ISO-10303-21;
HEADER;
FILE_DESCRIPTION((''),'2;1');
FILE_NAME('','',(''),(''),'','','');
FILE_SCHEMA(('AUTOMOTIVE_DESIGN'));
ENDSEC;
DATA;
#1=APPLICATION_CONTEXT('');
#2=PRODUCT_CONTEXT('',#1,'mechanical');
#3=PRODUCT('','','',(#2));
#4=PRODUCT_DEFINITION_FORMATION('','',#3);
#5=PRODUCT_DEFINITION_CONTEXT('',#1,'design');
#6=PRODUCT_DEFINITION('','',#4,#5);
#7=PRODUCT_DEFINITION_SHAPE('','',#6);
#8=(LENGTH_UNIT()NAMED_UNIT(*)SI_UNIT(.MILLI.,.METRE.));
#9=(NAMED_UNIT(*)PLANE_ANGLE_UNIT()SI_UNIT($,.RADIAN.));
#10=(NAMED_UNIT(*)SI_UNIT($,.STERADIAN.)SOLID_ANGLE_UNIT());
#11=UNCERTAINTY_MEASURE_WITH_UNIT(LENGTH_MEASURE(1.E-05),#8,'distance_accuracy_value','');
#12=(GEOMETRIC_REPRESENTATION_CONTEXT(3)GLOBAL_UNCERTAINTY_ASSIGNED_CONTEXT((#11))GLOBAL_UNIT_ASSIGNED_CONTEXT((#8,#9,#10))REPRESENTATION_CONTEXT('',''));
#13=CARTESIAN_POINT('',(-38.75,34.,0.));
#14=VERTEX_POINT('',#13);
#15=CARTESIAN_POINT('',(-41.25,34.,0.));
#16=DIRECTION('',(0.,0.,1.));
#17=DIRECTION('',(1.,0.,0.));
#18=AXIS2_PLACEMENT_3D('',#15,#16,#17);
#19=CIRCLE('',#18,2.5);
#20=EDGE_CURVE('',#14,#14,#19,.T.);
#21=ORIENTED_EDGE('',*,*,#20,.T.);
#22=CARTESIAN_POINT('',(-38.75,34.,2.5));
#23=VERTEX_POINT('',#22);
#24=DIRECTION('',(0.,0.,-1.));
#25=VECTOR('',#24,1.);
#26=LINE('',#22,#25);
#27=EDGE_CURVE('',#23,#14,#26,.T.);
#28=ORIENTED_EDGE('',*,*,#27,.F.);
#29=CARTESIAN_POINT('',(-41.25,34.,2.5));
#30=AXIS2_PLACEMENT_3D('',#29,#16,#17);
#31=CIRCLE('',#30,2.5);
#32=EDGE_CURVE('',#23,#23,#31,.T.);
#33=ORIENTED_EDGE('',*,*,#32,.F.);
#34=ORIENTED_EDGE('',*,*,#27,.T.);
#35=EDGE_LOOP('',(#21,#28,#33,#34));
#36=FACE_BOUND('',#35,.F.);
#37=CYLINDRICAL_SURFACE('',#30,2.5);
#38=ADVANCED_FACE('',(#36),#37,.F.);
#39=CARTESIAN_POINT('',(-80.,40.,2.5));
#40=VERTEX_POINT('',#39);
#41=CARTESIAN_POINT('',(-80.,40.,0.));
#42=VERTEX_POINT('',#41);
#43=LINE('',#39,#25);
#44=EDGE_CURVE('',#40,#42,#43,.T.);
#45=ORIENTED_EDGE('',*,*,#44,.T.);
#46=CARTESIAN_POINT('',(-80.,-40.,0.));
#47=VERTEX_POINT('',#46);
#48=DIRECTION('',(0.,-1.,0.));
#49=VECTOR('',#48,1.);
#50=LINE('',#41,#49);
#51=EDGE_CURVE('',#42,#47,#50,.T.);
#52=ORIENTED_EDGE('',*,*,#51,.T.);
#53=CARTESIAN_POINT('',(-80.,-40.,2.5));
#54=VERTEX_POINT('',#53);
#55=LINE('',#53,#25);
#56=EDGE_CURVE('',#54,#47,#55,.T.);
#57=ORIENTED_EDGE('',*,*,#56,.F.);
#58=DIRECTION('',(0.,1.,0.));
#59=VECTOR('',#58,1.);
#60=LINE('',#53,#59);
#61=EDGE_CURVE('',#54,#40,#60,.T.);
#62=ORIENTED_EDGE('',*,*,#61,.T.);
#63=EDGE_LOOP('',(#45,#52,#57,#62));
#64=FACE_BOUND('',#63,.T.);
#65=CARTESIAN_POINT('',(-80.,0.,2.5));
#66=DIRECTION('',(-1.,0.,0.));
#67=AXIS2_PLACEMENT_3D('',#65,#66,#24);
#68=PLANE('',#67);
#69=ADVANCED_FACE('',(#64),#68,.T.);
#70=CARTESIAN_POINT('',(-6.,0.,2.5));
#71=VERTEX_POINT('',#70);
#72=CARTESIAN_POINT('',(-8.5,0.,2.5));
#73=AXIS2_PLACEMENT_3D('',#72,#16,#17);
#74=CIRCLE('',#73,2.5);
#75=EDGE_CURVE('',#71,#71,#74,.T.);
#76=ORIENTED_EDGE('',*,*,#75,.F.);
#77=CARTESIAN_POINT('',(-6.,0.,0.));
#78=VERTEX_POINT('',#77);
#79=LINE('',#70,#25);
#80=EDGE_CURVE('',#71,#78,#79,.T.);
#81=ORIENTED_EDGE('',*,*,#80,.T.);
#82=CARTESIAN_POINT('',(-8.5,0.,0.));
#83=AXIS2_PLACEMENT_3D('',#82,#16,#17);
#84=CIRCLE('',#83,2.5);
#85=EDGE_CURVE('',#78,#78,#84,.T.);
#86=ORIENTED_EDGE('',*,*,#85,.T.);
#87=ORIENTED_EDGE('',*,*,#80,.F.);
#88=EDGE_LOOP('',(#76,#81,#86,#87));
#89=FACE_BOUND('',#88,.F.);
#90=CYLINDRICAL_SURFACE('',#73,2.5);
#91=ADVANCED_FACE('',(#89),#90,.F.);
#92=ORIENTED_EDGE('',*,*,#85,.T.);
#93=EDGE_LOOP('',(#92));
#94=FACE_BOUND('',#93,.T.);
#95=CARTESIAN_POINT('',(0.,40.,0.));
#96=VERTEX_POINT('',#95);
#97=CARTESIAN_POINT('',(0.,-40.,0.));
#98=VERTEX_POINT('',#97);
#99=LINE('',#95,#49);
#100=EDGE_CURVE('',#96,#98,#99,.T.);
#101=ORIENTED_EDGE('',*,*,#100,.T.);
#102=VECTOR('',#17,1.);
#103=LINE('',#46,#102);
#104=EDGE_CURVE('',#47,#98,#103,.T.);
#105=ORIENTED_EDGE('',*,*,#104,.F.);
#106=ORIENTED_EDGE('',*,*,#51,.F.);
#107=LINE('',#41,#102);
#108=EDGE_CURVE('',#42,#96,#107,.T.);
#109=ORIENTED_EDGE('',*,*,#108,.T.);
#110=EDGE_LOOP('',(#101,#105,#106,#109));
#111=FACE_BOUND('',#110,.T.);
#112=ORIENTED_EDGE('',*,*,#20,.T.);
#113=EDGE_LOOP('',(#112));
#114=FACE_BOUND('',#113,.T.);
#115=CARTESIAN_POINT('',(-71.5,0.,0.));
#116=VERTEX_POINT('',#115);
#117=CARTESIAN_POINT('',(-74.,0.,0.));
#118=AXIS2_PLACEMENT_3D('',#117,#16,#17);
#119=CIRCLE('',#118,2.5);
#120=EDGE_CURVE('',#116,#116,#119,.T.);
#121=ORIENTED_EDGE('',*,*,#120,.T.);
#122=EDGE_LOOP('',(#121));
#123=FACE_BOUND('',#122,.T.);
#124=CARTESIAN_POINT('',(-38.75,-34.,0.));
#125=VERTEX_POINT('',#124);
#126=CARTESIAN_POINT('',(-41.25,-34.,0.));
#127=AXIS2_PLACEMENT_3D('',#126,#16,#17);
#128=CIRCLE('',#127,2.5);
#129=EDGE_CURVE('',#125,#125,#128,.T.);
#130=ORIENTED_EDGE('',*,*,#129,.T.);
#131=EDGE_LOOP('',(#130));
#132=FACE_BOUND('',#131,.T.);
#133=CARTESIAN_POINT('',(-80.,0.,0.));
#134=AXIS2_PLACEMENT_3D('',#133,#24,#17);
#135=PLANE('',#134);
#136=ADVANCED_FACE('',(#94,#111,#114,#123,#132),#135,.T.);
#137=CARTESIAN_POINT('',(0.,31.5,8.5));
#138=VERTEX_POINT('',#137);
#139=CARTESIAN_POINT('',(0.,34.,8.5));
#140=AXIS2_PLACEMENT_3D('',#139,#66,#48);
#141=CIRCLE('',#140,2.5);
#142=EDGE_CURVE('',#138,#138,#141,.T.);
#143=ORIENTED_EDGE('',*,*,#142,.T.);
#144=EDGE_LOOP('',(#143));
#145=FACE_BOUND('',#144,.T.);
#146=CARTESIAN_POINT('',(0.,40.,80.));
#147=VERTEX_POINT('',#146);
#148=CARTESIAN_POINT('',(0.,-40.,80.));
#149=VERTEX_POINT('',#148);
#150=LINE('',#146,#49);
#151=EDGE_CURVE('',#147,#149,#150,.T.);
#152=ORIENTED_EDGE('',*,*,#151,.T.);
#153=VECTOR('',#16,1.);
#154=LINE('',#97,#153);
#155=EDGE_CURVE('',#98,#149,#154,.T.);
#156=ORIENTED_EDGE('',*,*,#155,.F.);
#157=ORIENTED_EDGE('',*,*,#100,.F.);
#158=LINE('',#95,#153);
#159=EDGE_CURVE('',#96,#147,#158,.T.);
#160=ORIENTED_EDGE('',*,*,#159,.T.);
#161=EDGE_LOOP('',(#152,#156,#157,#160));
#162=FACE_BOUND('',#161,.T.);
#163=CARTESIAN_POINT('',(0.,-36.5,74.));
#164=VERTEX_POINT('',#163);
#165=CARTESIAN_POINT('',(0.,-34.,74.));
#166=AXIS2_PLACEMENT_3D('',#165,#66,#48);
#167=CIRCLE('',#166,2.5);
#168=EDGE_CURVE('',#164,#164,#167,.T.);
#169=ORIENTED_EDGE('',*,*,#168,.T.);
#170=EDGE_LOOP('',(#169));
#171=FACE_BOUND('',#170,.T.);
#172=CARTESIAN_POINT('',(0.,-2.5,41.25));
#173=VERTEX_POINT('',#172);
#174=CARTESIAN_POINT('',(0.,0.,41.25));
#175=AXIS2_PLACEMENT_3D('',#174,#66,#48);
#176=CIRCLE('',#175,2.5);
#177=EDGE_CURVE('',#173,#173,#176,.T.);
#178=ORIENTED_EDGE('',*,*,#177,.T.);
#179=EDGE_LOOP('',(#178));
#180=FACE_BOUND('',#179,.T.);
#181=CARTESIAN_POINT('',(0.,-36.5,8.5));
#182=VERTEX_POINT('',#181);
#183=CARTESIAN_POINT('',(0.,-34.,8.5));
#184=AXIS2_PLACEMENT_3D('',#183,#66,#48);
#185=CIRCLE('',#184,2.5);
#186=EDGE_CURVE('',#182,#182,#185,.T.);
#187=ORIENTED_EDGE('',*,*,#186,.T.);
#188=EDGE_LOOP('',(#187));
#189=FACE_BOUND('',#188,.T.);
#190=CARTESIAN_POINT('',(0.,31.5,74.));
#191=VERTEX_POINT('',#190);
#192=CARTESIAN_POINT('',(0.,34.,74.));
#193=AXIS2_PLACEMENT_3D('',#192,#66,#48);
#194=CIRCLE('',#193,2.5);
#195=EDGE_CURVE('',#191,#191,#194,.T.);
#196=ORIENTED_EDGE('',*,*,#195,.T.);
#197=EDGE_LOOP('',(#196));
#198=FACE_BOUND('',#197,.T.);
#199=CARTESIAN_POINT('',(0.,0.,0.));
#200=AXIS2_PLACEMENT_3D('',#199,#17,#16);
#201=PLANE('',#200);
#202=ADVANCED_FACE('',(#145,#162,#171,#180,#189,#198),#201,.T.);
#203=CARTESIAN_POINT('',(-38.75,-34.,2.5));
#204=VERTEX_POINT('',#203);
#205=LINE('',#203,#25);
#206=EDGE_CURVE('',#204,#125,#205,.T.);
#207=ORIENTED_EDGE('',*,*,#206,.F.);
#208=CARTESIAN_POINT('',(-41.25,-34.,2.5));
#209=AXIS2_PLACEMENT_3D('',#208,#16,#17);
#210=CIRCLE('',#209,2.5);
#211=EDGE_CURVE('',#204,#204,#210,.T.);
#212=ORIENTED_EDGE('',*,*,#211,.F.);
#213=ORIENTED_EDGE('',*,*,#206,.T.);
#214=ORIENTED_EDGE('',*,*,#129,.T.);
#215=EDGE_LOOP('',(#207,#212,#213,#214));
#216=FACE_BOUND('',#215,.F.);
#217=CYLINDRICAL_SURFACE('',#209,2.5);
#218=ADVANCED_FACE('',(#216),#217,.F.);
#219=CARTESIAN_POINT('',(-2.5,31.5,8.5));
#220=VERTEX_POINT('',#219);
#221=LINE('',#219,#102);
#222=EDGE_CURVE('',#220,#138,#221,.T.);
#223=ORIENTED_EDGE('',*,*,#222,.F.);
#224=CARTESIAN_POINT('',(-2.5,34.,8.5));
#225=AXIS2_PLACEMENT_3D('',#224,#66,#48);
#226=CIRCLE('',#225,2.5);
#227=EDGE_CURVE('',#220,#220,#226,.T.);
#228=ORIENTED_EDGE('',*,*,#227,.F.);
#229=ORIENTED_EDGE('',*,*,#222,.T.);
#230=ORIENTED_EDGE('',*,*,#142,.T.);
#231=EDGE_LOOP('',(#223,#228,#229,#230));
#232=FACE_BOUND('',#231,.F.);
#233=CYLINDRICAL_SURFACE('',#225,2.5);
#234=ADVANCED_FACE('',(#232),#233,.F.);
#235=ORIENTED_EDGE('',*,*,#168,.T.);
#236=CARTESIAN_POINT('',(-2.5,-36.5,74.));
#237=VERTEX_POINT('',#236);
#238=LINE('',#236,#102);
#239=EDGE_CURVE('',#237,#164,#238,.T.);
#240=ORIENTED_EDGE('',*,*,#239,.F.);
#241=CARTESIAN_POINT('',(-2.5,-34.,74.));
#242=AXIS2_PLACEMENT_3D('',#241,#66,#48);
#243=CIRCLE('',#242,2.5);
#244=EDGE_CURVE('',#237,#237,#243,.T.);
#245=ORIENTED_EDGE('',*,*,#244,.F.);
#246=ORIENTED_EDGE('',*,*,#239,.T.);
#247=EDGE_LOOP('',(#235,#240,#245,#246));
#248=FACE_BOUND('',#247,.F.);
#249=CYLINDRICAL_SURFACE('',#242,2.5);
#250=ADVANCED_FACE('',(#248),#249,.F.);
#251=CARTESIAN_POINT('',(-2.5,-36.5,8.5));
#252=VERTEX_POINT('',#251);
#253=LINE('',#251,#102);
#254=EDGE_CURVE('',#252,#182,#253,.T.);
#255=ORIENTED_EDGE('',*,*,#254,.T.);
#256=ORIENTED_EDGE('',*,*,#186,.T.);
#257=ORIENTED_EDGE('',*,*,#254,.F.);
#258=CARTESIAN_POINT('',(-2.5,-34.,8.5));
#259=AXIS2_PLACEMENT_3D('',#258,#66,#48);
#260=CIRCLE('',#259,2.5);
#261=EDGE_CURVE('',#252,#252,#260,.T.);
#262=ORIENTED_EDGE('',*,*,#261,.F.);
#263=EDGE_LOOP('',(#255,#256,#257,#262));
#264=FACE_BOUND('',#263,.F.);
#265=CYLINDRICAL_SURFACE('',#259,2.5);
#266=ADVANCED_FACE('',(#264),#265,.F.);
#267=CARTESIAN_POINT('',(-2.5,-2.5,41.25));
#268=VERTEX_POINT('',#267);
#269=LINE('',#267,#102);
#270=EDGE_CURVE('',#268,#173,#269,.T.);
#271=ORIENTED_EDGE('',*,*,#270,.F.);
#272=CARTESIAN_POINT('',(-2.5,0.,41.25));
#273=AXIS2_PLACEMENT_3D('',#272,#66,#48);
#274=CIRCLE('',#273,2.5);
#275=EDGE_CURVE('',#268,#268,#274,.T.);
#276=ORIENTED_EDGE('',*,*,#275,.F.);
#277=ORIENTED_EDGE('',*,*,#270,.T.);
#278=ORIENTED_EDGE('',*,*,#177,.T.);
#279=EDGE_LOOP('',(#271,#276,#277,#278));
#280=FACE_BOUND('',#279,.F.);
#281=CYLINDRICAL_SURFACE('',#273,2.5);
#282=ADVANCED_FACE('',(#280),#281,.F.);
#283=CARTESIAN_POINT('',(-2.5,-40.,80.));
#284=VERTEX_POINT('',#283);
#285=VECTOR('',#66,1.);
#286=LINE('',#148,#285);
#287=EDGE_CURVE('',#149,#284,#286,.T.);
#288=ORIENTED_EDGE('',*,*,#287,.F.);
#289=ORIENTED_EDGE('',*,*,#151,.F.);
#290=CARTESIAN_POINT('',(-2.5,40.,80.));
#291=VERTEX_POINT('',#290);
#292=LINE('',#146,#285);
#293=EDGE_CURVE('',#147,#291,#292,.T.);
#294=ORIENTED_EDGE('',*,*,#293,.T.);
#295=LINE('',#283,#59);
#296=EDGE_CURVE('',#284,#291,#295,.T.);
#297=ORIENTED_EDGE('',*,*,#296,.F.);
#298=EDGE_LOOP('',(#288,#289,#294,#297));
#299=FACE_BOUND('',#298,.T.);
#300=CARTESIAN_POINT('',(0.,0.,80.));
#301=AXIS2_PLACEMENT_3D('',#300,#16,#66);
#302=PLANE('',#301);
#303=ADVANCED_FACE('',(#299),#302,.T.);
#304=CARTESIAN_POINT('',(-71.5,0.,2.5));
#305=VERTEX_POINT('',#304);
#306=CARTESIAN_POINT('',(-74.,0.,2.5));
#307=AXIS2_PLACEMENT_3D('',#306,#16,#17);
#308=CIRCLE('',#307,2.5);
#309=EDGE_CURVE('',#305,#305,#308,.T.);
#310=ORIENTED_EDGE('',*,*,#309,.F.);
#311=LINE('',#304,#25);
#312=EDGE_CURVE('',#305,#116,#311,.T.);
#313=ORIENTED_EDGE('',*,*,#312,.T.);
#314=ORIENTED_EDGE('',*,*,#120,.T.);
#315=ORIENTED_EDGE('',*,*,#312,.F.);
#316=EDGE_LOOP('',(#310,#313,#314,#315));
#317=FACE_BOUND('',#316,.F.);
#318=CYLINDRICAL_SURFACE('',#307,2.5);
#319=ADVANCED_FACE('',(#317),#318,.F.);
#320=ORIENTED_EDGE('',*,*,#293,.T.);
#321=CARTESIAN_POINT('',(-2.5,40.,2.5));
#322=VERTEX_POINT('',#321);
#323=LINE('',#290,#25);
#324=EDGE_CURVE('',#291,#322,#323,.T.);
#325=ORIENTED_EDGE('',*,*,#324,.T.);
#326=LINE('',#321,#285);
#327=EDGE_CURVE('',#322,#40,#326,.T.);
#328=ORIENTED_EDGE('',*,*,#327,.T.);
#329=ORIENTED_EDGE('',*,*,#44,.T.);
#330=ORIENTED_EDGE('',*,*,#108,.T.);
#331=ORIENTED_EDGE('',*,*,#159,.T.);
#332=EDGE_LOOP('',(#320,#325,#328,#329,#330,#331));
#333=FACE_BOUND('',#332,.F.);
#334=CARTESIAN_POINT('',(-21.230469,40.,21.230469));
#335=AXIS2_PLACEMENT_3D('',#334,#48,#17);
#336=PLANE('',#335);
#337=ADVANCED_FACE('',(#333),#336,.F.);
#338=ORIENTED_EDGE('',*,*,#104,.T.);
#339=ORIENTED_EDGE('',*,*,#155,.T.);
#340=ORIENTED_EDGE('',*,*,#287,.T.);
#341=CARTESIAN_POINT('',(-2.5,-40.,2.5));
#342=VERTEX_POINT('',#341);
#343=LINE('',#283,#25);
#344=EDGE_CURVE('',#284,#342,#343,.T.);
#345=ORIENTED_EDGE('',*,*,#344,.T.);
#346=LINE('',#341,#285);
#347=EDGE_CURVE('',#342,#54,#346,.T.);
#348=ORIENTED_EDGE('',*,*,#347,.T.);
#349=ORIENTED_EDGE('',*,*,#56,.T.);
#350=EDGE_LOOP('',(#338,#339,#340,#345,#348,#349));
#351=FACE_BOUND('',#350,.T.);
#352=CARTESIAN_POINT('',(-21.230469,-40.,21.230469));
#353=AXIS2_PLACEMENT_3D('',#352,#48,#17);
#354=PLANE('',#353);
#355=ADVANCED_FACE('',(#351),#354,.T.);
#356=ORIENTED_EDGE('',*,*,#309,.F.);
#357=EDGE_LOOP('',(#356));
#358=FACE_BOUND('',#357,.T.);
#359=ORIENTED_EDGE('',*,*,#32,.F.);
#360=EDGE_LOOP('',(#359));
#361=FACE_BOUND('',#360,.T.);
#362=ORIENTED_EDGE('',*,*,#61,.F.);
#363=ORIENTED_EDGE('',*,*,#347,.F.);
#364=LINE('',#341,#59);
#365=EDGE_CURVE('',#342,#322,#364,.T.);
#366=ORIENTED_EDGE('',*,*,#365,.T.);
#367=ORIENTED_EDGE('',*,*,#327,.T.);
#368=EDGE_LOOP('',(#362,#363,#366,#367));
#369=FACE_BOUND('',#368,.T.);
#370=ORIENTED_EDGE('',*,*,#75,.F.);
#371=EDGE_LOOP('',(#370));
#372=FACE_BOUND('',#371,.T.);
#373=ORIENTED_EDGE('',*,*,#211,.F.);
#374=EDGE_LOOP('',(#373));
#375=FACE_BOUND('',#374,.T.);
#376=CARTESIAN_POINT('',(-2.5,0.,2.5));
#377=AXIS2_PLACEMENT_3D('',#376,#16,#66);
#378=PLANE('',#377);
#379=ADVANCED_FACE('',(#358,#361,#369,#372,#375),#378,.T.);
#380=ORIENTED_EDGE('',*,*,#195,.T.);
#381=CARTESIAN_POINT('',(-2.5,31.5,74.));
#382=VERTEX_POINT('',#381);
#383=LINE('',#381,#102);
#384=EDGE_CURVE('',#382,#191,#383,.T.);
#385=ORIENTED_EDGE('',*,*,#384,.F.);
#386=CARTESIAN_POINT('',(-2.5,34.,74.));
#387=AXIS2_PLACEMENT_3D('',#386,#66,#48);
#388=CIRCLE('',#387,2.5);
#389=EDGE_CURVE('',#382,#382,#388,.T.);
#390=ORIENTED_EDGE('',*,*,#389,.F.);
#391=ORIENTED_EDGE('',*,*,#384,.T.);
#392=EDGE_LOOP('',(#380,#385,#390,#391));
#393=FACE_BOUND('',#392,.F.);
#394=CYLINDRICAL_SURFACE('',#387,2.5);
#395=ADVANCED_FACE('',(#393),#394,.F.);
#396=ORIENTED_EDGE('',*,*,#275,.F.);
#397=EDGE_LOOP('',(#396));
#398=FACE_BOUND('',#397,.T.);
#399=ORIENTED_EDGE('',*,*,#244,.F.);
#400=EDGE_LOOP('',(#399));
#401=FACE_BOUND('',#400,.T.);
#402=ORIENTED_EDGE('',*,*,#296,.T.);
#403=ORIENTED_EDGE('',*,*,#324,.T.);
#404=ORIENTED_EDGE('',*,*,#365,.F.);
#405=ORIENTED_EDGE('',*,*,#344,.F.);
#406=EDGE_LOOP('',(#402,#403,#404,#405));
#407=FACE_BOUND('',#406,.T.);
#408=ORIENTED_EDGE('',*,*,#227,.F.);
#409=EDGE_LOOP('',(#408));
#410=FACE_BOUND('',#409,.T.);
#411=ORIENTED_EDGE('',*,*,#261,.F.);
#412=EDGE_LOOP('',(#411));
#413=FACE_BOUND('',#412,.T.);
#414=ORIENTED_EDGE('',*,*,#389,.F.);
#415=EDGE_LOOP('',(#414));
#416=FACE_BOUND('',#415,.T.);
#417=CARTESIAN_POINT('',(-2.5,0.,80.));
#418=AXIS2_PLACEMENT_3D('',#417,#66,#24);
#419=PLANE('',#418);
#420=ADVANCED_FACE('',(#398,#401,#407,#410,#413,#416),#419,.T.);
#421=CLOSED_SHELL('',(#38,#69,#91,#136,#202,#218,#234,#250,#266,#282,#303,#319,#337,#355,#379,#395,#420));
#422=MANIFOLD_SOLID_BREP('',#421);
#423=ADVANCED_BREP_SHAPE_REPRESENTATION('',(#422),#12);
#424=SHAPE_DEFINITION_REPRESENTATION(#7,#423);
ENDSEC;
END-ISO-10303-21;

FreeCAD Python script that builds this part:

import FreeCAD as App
import Part
import Sketcher

doc = App.newDocument("Part")
params = doc.addObject("Spreadsheet::Sheet", "Params")
for row, (alias, value) in enumerate([
    ("sketch1_width", "80 mm"),
    ("sketch1_width2", "2.5 mm"),
    ("pad1_length", "80 mm"),
    ("sketch2_diameter", "5 mm"),
    ("pocket1_length", "25 mm"),
    ("sketch3_diameter", "5 mm"),
    ("pocket2_length", "25 mm"),
], start=1):
    params.set(f"A{row}", alias)
    params.set(f"B{row}", "=" + value)
    params.setAlias(f"B{row}", alias)

body = doc.addObject("PartDesign::Body", "Body")

sketch1 = body.newObject("Sketcher::SketchObject", "Sketch")
sketch1.AttachmentSupport = (doc.getObject("XZ_Plane"), [""])
sketch1.MapMode = "FlatFace"
sketch1.addGeometry(Part.LineSegment(App.Vector(-80, 2.5, 0), App.Vector(-80, 0, 0)), False)
sketch1.addGeometry(Part.LineSegment(App.Vector(-80, 0, 0), App.Vector(0, 0, 0)), False)
sketch1.addGeometry(Part.LineSegment(App.Vector(0, 0, 0), App.Vector(0, 80, 0)), False)
sketch1.addGeometry(Part.LineSegment(App.Vector(0, 80, 0), App.Vector(-2.5, 80, 0)), False)
sketch1.addGeometry(Part.LineSegment(App.Vector(-2.5, 80, 0), App.Vector(-2.5, 2.5, 0)), False)
sketch1.addGeometry(Part.LineSegment(App.Vector(-2.5, 2.5, 0), App.Vector(-80, 2.5, 0)), False)
sketch1.addConstraint(Sketcher.Constraint("Coincident", 0, 2, 1, 1))
sketch1.addConstraint(Sketcher.Constraint("Coincident", 1, 2, 2, 1))
sketch1.addConstraint(Sketcher.Constraint("Coincident", 2, 2, 3, 1))
sketch1.addConstraint(Sketcher.Constraint("Coincident", 3, 2, 4, 1))
sketch1.addConstraint(Sketcher.Constraint("Coincident", 4, 2, 5, 1))
sketch1.addConstraint(Sketcher.Constraint("Coincident", 5, 2, 0, 1))
sketch1.addConstraint(Sketcher.Constraint("Vertical", 0))
sketch1.addConstraint(Sketcher.Constraint("Horizontal", 1))
sketch1.addConstraint(Sketcher.Constraint("Vertical", 2))
sketch1.addConstraint(Sketcher.Constraint("Horizontal", 3))
sketch1.addConstraint(Sketcher.Constraint("Vertical", 4))
sketch1.addConstraint(Sketcher.Constraint("Horizontal", 5))
sketch1.addConstraint(Sketcher.Constraint("Coincident", 1, 2, -1, 1))
sketch1.addConstraint(Sketcher.Constraint("Equal", 3, 0))
sketch1.addConstraint(Sketcher.Constraint("Equal", 1, 2))
sketch1.addConstraint(Sketcher.Constraint("DistanceX", 1, 1, 1, 2, 80.0))
sketch1.addConstraint(Sketcher.Constraint("DistanceX", 3, 2, 3, 1, 2.5))
sketch1.setExpression("Constraints[15]", "Params.sketch1_width")
sketch1.setExpression("Constraints[16]", "Params.sketch1_width2")
pad1 = body.newObject("PartDesign::Pad", "Pad")
pad1.Profile = sketch1
pad1.setExpression("Length", "Params.pad1_length")
pad1.Midplane = True

sketch2 = body.newObject("Sketcher::SketchObject", "Sketch001")
sketch2.AttachmentSupport = (doc.getObject("YZ_Plane"), [""])
sketch2.MapMode = "FlatFace"
sketch2.AttachmentOffset = App.Placement(App.Vector(0, 0, -2.5), App.Rotation())
sketch2.addGeometry(Part.Circle(App.Vector(0, 41.2, 0), App.Vector(0, 0, 1), 2.5), False)
sketch2.addGeometry(Part.Circle(App.Vector(34, 8.5, 0), App.Vector(0, 0, 1), 2.5), False)
sketch2.addGeometry(Part.Circle(App.Vector(34, 74, 0), App.Vector(0, 0, 1), 2.5), False)
sketch2.addGeometry(Part.Circle(App.Vector(-34, 74, 0), App.Vector(0, 0, 1), 2.5), False)
sketch2.addGeometry(Part.Circle(App.Vector(-34, 8.5, 0), App.Vector(0, 0, 1), 2.5), False)
sketch2.addConstraint(Sketcher.Constraint("Equal", 0, 1))
sketch2.addConstraint(Sketcher.Constraint("Equal", 1, 2))
sketch2.addConstraint(Sketcher.Constraint("Equal", 2, 3))
sketch2.addConstraint(Sketcher.Constraint("Equal", 3, 4))
sketch2.addConstraint(Sketcher.Constraint("Symmetric", 2, 3, 3, 3, -2))
sketch2.addConstraint(Sketcher.Constraint("Symmetric", 1, 3, 4, 3, -2))
sketch2.addConstraint(Sketcher.Constraint("PointOnObject", 0, 3, -2))
sketch2.addConstraint(Sketcher.Constraint("Vertical", 1, 3, 2, 3))
sketch2.addConstraint(Sketcher.Constraint("Diameter", 0, 5.0))
sketch2.addConstraint(Sketcher.Constraint("DistanceX", -1, 1, 1, 3, 34.0))
sketch2.addConstraint(Sketcher.Constraint("DistanceY", -1, 1, 2, 3, 74.0))
sketch2.addConstraint(Sketcher.Constraint("DistanceY", -1, 1, 1, 3, 8.5))
sketch2.addConstraint(Sketcher.Constraint("DistanceY", -1, 1, 0, 3, 41.25))
sketch2.setExpression("Constraints[8]", "Params.sketch2_diameter")
pocket1 = body.newObject("PartDesign::Pocket", "Pocket")
pocket1.Profile = sketch2
pocket1.setExpression("Length", "Params.pocket1_length")
pocket1.Reversed = True

sketch3 = body.newObject("Sketcher::SketchObject", "Sketch002")
sketch3.AttachmentSupport = (doc.getObject("XY_Plane"), [""])
sketch3.MapMode = "FlatFace"
sketch3.AttachmentOffset = App.Placement(App.Vector(0, 0, 2.5), App.Rotation())
sketch3.addGeometry(Part.Circle(App.Vector(-74, 0, 0), App.Vector(0, 0, 1), 2.5), False)
sketch3.addGeometry(Part.Circle(App.Vector(-41.2, 34, 0), App.Vector(0, 0, 1), 2.5), False)
sketch3.addGeometry(Part.Circle(App.Vector(-41.2, -34, 0), App.Vector(0, 0, 1), 2.5), False)
sketch3.addGeometry(Part.Circle(App.Vector(-8.5, 0, 0), App.Vector(0, 0, 1), 2.5), False)
sketch3.addConstraint(Sketcher.Constraint("Equal", 0, 1))
sketch3.addConstraint(Sketcher.Constraint("Equal", 1, 2))
sketch3.addConstraint(Sketcher.Constraint("Equal", 2, 3))
sketch3.addConstraint(Sketcher.Constraint("Symmetric", 1, 3, 2, 3, -1))
sketch3.addConstraint(Sketcher.Constraint("PointOnObject", 0, 3, -1))
sketch3.addConstraint(Sketcher.Constraint("PointOnObject", 3, 3, -1))
sketch3.addConstraint(Sketcher.Constraint("Diameter", 0, 5.0))
sketch3.addConstraint(Sketcher.Constraint("DistanceX", 0, 3, -1, 1, 74.0))
sketch3.addConstraint(Sketcher.Constraint("DistanceY", -1, 1, 1, 3, 34.0))
sketch3.addConstraint(Sketcher.Constraint("DistanceX", 3, 3, -1, 1, 8.5))
sketch3.addConstraint(Sketcher.Constraint("DistanceX", 1, 3, -1, 1, 41.25))
sketch3.setExpression("Constraints[6]", "Params.sketch3_diameter")
pocket2 = body.newObject("PartDesign::Pocket", "Pocket001")
pocket2.Profile = sketch3
pocket2.setExpression("Length", "Params.pocket2_length")

doc.recompute()
